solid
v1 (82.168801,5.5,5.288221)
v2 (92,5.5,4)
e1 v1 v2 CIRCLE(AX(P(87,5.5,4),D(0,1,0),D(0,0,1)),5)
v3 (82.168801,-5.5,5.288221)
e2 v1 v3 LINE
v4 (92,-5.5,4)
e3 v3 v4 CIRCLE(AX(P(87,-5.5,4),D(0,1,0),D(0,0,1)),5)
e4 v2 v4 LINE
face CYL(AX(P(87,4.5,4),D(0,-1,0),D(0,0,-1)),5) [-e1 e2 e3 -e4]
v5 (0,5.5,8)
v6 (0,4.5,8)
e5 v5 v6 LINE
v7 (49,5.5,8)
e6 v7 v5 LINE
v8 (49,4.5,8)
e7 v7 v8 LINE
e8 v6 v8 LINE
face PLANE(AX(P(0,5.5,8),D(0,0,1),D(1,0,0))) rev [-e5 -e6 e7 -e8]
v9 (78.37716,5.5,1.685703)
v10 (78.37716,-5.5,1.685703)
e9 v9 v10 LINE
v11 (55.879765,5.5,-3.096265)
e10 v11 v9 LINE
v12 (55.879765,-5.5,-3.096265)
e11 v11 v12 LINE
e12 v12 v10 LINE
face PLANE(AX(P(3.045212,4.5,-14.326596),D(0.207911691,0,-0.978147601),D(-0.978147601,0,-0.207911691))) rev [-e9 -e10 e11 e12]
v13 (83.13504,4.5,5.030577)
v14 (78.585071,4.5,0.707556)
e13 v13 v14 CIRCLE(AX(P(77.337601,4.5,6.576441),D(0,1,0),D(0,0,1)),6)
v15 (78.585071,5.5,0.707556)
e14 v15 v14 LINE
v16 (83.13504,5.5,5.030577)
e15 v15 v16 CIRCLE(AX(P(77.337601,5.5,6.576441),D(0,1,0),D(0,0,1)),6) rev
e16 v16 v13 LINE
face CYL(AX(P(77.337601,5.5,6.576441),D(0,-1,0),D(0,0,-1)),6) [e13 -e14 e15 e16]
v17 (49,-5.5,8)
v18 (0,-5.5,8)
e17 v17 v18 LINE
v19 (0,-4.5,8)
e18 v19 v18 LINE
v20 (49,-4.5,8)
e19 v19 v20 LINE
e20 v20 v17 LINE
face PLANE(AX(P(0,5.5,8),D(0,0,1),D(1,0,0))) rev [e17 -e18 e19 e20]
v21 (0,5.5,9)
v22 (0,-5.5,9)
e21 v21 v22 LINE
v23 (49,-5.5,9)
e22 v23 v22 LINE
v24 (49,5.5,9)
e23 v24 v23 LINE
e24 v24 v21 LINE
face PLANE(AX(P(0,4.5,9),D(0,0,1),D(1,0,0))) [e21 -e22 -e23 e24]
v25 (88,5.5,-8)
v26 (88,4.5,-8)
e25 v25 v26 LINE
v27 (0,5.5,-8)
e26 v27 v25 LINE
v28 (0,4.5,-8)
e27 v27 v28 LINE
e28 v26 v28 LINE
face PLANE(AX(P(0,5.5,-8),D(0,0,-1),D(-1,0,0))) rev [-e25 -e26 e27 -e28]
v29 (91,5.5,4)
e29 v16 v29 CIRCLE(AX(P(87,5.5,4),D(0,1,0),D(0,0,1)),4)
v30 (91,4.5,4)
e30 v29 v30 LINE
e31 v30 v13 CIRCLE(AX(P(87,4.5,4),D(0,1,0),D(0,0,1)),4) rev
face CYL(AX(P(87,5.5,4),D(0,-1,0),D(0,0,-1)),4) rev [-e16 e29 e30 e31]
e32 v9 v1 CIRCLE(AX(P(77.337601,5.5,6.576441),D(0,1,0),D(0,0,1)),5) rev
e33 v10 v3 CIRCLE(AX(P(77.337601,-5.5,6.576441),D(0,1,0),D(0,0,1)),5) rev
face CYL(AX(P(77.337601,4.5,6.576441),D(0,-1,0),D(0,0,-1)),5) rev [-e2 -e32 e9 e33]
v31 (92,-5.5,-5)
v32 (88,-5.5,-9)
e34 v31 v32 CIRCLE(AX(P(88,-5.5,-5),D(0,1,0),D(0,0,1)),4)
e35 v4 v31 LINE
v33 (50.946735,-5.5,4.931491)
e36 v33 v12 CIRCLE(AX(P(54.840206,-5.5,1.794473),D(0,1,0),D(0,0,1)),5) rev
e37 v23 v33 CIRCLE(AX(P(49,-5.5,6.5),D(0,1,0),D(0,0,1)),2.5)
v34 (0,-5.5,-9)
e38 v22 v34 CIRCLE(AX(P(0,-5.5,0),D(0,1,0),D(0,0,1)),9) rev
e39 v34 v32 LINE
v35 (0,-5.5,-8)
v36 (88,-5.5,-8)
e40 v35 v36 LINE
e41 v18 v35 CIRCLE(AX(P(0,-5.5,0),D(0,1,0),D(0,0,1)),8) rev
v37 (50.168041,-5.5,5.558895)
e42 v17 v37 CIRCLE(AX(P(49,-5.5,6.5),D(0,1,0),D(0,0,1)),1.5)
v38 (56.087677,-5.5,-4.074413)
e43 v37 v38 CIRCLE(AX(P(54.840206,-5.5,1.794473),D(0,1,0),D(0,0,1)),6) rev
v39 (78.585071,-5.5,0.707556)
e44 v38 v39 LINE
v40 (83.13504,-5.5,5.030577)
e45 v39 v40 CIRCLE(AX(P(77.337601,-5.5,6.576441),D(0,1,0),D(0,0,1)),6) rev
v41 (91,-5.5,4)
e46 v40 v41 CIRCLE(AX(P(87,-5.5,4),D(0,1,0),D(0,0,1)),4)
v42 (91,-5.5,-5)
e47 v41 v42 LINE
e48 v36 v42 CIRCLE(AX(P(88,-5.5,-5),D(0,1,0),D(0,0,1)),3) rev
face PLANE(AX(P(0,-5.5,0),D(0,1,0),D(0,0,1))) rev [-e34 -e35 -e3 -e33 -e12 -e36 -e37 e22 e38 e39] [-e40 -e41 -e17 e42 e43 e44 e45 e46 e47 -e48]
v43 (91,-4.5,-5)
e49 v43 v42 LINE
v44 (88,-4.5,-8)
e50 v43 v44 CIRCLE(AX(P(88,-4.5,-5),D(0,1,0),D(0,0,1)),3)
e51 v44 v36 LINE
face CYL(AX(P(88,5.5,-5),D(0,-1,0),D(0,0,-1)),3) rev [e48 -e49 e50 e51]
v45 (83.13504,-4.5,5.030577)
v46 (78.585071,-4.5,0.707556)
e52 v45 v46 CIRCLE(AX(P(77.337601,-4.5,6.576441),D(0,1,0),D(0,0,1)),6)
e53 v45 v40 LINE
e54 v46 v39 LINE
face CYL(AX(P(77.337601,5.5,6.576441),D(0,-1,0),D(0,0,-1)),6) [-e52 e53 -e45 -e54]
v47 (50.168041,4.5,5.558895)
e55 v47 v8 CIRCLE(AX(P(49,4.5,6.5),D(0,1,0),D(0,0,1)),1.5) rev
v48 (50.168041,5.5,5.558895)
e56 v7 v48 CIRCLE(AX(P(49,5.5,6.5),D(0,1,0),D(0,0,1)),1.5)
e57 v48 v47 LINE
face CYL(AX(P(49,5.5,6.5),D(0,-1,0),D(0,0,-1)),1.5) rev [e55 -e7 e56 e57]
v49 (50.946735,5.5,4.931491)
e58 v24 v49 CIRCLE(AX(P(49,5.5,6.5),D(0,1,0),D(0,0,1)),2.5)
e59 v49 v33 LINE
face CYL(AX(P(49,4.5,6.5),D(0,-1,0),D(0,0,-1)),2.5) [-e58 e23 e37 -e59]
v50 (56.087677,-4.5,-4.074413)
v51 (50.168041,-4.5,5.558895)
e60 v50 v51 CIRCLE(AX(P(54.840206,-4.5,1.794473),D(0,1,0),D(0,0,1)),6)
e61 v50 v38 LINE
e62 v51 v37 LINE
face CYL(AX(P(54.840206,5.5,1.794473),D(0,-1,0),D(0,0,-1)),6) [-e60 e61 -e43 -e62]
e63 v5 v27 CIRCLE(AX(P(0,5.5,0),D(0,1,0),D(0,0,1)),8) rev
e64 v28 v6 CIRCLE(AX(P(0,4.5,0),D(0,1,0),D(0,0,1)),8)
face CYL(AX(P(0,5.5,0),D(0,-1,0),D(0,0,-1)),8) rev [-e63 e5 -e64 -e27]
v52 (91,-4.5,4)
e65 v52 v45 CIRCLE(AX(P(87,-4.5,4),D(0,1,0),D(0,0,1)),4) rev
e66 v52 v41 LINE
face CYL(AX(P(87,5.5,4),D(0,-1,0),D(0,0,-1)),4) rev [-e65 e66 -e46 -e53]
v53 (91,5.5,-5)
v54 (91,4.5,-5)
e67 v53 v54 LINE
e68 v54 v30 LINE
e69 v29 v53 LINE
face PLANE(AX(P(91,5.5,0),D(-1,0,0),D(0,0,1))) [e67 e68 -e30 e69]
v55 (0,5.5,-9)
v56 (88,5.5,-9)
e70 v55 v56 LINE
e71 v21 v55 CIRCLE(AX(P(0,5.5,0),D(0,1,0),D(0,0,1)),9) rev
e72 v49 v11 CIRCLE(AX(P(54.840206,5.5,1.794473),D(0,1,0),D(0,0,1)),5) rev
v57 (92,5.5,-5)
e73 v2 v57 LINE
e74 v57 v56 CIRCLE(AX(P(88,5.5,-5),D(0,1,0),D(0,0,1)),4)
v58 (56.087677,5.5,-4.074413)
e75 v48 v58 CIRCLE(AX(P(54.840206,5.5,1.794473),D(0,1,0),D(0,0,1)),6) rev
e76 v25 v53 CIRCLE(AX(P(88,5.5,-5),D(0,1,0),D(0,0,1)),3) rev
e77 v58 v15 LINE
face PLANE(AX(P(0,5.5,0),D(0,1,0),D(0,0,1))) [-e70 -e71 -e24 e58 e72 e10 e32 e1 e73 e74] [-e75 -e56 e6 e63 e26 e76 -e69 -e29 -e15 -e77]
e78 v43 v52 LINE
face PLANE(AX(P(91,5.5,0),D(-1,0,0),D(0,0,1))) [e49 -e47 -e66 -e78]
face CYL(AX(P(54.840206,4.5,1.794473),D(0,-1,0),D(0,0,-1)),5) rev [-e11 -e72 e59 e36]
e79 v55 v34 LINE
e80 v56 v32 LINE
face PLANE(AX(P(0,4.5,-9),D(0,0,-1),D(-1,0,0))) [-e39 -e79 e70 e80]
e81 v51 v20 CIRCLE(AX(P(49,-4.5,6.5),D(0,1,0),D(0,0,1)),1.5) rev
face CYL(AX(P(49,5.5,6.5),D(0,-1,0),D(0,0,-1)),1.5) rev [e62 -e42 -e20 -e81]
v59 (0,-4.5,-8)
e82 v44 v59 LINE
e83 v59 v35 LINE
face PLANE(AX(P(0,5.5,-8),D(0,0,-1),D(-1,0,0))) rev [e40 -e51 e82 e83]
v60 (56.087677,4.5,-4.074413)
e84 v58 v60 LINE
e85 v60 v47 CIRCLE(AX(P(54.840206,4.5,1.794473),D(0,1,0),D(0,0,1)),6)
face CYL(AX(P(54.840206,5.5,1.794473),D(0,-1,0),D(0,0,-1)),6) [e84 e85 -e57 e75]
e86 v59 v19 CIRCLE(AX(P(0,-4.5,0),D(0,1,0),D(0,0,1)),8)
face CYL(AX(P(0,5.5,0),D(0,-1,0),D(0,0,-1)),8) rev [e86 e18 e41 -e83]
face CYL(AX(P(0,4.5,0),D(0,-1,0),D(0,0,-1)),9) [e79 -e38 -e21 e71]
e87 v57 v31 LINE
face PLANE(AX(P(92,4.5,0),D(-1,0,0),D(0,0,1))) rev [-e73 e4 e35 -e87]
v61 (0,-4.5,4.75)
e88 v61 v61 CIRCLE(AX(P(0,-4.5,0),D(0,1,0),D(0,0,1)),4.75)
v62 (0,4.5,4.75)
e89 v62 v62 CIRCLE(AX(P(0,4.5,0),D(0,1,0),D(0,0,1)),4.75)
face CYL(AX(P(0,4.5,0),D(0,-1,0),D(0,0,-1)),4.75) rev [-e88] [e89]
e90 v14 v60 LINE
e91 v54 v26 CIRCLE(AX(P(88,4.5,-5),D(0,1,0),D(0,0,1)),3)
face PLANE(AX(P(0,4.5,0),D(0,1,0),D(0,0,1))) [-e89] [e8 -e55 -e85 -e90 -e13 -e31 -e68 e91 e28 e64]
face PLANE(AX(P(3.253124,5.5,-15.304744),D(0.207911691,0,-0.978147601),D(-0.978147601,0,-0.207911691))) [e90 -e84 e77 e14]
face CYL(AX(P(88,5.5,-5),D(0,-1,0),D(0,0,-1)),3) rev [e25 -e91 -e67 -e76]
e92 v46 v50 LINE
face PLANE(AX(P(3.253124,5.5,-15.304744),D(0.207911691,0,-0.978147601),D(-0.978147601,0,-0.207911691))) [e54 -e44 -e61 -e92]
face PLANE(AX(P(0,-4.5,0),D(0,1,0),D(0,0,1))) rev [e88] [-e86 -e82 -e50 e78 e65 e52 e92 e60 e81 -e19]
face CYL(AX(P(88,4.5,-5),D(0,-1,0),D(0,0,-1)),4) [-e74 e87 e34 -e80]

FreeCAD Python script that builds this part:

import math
import FreeCAD as App
import Part
import Sketcher
from FreeCAD import Vector
Q = App.Units.Quantity

doc = App.newDocument("Part")
params = doc.addObject("Spreadsheet::Sheet", "Params")
for row, (alias, value) in enumerate([
    ("sketch1_radius", "9 mm"),
    ("sketch1_radius2", "5 mm"),
    ("sketch1_radius3", "4 mm"),
    ("sketch1_diameter", "9.5 mm"),
    ("sketch1_radius4", "2.5 mm"),
    ("pad1_length", "9 mm"),
    ("sketch2_radius", "9 mm"),
    ("sketch2_radius2", "5 mm"),
    ("sketch2_radius3", "4 mm"),
    ("sketch2_radius4", "2.5 mm"),
    ("sketch2_width", "88 mm"),
    ("pad2_length", "11 mm"),
], start=1):
    params.set(f"A{row}", alias)
    params.set(f"B{row}", "=" + value)
    params.setAlias(f"B{row}", alias)

body = doc.addObject("PartDesign::Body", "Body")

# Sketch on XZ plane
sketch1 = doc.addObject("Sketcher::SketchObject", "Sketch")
body.addObject(sketch1)
sketch1.AttachmentSupport = (doc.XZ_Plane, [""])
sketch1.MapMode = "FlatFace"
sketch1.addGeometry([
    Part.LineSegment(Vector(88, -9, 0), Vector(0, -9, 0)),  # 0
    Part.ArcOfCircle(Part.Circle(Vector(0, 0, 0), Vector(0, 0, 1), 9), math.radians(90), math.radians(270)),  # 1
    Part.LineSegment(Vector(0, 9, 0), Vector(49, 9, 0)),  # 2
    Part.ArcOfCircle(Part.Circle(Vector(49, 6.5, 0), Vector(0, 0, 1), 2.5), math.radians(-39), math.radians(90)),  # 3
    Part.ArcOfCircle(Part.Circle(Vector(54.8, 1.8, 0), Vector(0, 0, 1), 5), math.radians(141), math.radians(282)),  # 4
    Part.LineSegment(Vector(55.9, -3.1, 0), Vector(78.4, 1.7, 0)),  # 5
    Part.ArcOfCircle(Part.Circle(Vector(77.3, 6.6, 0), Vector(0, 0, 1), 5), math.radians(-78), math.radians(-15)),  # 6
    Part.ArcOfCircle(Part.Circle(Vector(87, 4, 0), Vector(0, 0, 1), 5), math.radians(0), math.radians(165)),  # 7
    Part.LineSegment(Vector(92, 4, 0), Vector(92, -5, 0)),  # 8
    Part.ArcOfCircle(Part.Circle(Vector(88, -5, 0), Vector(0, 0, 1), 4), math.radians(-90), math.radians(0)),  # 9
    Part.Circle(Vector(0, 0, 0), Vector(0, 0, 1), 4.8),  # 10
], False)
sketch1.addConstraint([
    Sketcher.Constraint("Tangent", 0, 2, 1, 2),
    Sketcher.Constraint("Tangent", 1, 1, 2, 1),
    Sketcher.Constraint("Tangent", 2, 2, 3, 2),
    Sketcher.Constraint("Tangent", 3, 1, 4, 1),
    Sketcher.Constraint("Tangent", 4, 2, 5, 1),
    Sketcher.Constraint("Tangent", 5, 2, 6, 1),
    Sketcher.Constraint("Tangent", 6, 2, 7, 2),
    Sketcher.Constraint("Tangent", 7, 1, 8, 1),
    Sketcher.Constraint("Tangent", 8, 2, 9, 2),
    Sketcher.Constraint("Tangent", 9, 1, 0, 1),
    Sketcher.Constraint("Horizontal", 0),
    Sketcher.Constraint("Horizontal", 2),
    Sketcher.Constraint("Vertical", 8),
    Sketcher.Constraint("Coincident", 1, 3, -1, 1),
    Sketcher.Constraint("Coincident", 10, 3, -1, 1),
    Sketcher.Constraint("Equal", 4, 6),
    Sketcher.Constraint("Equal", 6, 7),
    Sketcher.Constraint("Radius", 1, 9.0),
    Sketcher.Constraint("Radius", 4, 5.0),
    Sketcher.Constraint("Radius", 9, 4.0),
    Sketcher.Constraint("Diameter", 10, 9.5),
    Sketcher.Constraint("Radius", 3, 2.5),
    Sketcher.Constraint("DistanceX", 0, 2, 0, 1, 88.0),
    Sketcher.Constraint("DistanceX", 2, 1, 2, 2, 49.0),
    Sketcher.Constraint("DistanceY", 8, 2, 8, 1, 9.0),
    Sketcher.Constraint("Angle", 5, Q("12 deg")),
    Sketcher.Constraint("Distance", 5, 23.0),
])
sketch1.setExpression("Constraints[17]", "Params.sketch1_radius")
sketch1.setExpression("Constraints[18]", "Params.sketch1_radius2")
sketch1.setExpression("Constraints[19]", "Params.sketch1_radius3")
sketch1.setExpression("Constraints[20]", "Params.sketch1_diameter")
sketch1.setExpression("Constraints[21]", "Params.sketch1_radius4")
pad1 = doc.addObject("PartDesign::Pad", "Pad")
body.addObject(pad1)
pad1.Profile = sketch1
pad1.setExpression("Length", "Params.pad1_length")
pad1.Midplane = True

# Sketch on XZ plane
sketch2 = doc.addObject("Sketcher::SketchObject", "Sketch001")
body.addObject(sketch2)
sketch2.AttachmentSupport = (doc.XZ_Plane, [""])
sketch2.MapMode = "FlatFace"
sketch2.addGeometry([
    Part.LineSegment(Vector(88, -9, 0), Vector(0, -9, 0)),  # 0
    Part.ArcOfCircle(Part.Circle(Vector(0, 0, 0), Vector(0, 0, 1), 9), math.radians(90), math.radians(270)),  # 1
    Part.LineSegment(Vector(0, 9, 0), Vector(49, 9, 0)),  # 2
    Part.ArcOfCircle(Part.Circle(Vector(49, 6.5, 0), Vector(0, 0, 1), 2.5), math.radians(-39), math.radians(90)),  # 3
    Part.ArcOfCircle(Part.Circle(Vector(54.8, 1.8, 0), Vector(0, 0, 1), 5), math.radians(141), math.radians(282)),  # 4
    Part.LineSegment(Vector(55.9, -3.1, 0), Vector(78.4, 1.7, 0)),  # 5
    Part.ArcOfCircle(Part.Circle(Vector(77.3, 6.6, 0), Vector(0, 0, 1), 5), math.radians(-78), math.radians(-15)),  # 6
    Part.ArcOfCircle(Part.Circle(Vector(87, 4, 0), Vector(0, 0, 1), 5), math.radians(0), math.radians(165)),  # 7
    Part.LineSegment(Vector(92, 4, 0), Vector(92, -5, 0)),  # 8
    Part.ArcOfCircle(Part.Circle(Vector(88, -5, 0), Vector(0, 0, 1), 4), math.radians(-90), math.radians(0)),  # 9
    Part.LineSegment(Vector(0, -8, 0), Vector(88, -8, 0)),  # 10
    Part.ArcOfCircle(Part.Circle(Vector(88, -5, 0), Vector(0, 0, 1), 3), math.radians(-90), math.radians(0)),  # 11
    Part.LineSegment(Vector(91, -5, 0), Vector(91, 4, 0)),  # 12
    Part.ArcOfCircle(Part.Circle(Vector(87, 4, 0), Vector(0, 0, 1), 4), math.radians(0), math.radians(165)),  # 13
    Part.ArcOfCircle(Part.Circle(Vector(77.3, 6.6, 0), Vector(0, 0, 1), 6), math.radians(-78), math.radians(-15)),  # 14
    Part.LineSegment(Vector(78.6, 0.7, 0), Vector(56.1, -4.1, 0)),  # 15
    Part.ArcOfCircle(Part.Circle(Vector(54.8, 1.8, 0), Vector(0, 0, 1), 6), math.radians(141), math.radians(282)),  # 16
    Part.ArcOfCircle(Part.Circle(Vector(49, 6.5, 0), Vector(0, 0, 1), 1.5), math.radians(-39), math.radians(90)),  # 17
    Part.LineSegment(Vector(49, 8, 0), Vector(0, 8, 0)),  # 18
    Part.ArcOfCircle(Part.Circle(Vector(0, 0, 0), Vector(0, 0, 1), 8), math.radians(90), math.radians(270)),  # 19
], False)
sketch2.addConstraint([
    Sketcher.Constraint("Tangent", 0, 2, 1, 2),
    Sketcher.Constraint("Tangent", 1, 1, 2, 1),
    Sketcher.Constraint("Tangent", 2, 2, 3, 2),
    Sketcher.Constraint("Tangent", 3, 1, 4, 1),
    Sketcher.Constraint("Tangent", 4, 2, 5, 1),
    Sketcher.Constraint("Tangent", 5, 2, 6, 1),
    Sketcher.Constraint("Tangent", 6, 2, 7, 2),
    Sketcher.Constraint("Tangent", 7, 1, 8, 1),
    Sketcher.Constraint("Tangent", 8, 2, 9, 2),
    Sketcher.Constraint("Tangent", 9, 1, 0, 1),
    Sketcher.Constraint("Tangent", 10, 2, 11, 1),
    Sketcher.Constraint("Tangent", 11, 2, 12, 1),
    Sketcher.Constraint("Tangent", 12, 2, 13, 1),
    Sketcher.Constraint("Tangent", 13, 2, 14, 2),
    Sketcher.Constraint("Tangent", 14, 1, 15, 1),
    Sketcher.Constraint("Tangent", 15, 2, 16, 2),
    Sketcher.Constraint("Tangent", 16, 1, 17, 1),
    Sketcher.Constraint("Tangent", 17, 2, 18, 1),
    Sketcher.Constraint("Tangent", 18, 2, 19, 1),
    Sketcher.Constraint("Tangent", 19, 2, 10, 1),
    Sketcher.Constraint("Horizontal", 0),
    Sketcher.Constraint("Horizontal", 2),
    Sketcher.Constraint("Vertical", 8),
    Sketcher.Constraint("Horizontal", 10),
    Sketcher.Constraint("Vertical", 12),
    Sketcher.Constraint("Horizontal", 18),
    Sketcher.Constraint("Coincident", 1, 3, -1, 1),
    Sketcher.Constraint("Coincident", 19, 3, -1, 1),
    Sketcher.Constraint("Coincident", 11, 3, 9, 3),
    Sketcher.Constraint("Coincident", 13, 3, 7, 3),
    Sketcher.Constraint("Coincident", 14, 3, 6, 3),
    Sketcher.Constraint("Coincident", 16, 3, 4, 3),
    Sketcher.Constraint("Coincident", 17, 3, 3, 3),
    Sketcher.Constraint("Equal", 4, 6),
    Sketcher.Constraint("Equal", 6, 7),
    Sketcher.Constraint("Equal", 9, 13),
    Sketcher.Constraint("Radius", 1, 9.0),
    Sketcher.Constraint("Radius", 4, 5.0),
    Sketcher.Constraint("Radius", 9, 4.0),
    Sketcher.Constraint("Radius", 3, 2.5),
    Sketcher.Constraint("DistanceX", 0, 2, 0, 1, 88.0),
    Sketcher.Constraint("DistanceX", 2, 1, 2, 2, 49.0),
    Sketcher.Constraint("DistanceY", 8, 2, 8, 1, 9.0),
    Sketcher.Constraint("Angle", 5, Q("12 deg")),
    Sketcher.Constraint("Distance", 5, 23.0),
])
sketch2.setExpression("Constraints[36]", "Params.sketch2_radius")
sketch2.setExpression("Constraints[37]", "Params.sketch2_radius2")
sketch2.setExpression("Constraints[38]", "Params.sketch2_radius3")
sketch2.setExpression("Constraints[39]", "Params.sketch2_radius4")
sketch2.setExpression("Constraints[40]", "Params.sketch2_width")
pad2 = doc.addObject("PartDesign::Pad", "Pad001")
body.addObject(pad2)
pad2.Profile = sketch2
pad2.setExpression("Length", "Params.pad2_length")
pad2.Midplane = True

doc.recompute()
